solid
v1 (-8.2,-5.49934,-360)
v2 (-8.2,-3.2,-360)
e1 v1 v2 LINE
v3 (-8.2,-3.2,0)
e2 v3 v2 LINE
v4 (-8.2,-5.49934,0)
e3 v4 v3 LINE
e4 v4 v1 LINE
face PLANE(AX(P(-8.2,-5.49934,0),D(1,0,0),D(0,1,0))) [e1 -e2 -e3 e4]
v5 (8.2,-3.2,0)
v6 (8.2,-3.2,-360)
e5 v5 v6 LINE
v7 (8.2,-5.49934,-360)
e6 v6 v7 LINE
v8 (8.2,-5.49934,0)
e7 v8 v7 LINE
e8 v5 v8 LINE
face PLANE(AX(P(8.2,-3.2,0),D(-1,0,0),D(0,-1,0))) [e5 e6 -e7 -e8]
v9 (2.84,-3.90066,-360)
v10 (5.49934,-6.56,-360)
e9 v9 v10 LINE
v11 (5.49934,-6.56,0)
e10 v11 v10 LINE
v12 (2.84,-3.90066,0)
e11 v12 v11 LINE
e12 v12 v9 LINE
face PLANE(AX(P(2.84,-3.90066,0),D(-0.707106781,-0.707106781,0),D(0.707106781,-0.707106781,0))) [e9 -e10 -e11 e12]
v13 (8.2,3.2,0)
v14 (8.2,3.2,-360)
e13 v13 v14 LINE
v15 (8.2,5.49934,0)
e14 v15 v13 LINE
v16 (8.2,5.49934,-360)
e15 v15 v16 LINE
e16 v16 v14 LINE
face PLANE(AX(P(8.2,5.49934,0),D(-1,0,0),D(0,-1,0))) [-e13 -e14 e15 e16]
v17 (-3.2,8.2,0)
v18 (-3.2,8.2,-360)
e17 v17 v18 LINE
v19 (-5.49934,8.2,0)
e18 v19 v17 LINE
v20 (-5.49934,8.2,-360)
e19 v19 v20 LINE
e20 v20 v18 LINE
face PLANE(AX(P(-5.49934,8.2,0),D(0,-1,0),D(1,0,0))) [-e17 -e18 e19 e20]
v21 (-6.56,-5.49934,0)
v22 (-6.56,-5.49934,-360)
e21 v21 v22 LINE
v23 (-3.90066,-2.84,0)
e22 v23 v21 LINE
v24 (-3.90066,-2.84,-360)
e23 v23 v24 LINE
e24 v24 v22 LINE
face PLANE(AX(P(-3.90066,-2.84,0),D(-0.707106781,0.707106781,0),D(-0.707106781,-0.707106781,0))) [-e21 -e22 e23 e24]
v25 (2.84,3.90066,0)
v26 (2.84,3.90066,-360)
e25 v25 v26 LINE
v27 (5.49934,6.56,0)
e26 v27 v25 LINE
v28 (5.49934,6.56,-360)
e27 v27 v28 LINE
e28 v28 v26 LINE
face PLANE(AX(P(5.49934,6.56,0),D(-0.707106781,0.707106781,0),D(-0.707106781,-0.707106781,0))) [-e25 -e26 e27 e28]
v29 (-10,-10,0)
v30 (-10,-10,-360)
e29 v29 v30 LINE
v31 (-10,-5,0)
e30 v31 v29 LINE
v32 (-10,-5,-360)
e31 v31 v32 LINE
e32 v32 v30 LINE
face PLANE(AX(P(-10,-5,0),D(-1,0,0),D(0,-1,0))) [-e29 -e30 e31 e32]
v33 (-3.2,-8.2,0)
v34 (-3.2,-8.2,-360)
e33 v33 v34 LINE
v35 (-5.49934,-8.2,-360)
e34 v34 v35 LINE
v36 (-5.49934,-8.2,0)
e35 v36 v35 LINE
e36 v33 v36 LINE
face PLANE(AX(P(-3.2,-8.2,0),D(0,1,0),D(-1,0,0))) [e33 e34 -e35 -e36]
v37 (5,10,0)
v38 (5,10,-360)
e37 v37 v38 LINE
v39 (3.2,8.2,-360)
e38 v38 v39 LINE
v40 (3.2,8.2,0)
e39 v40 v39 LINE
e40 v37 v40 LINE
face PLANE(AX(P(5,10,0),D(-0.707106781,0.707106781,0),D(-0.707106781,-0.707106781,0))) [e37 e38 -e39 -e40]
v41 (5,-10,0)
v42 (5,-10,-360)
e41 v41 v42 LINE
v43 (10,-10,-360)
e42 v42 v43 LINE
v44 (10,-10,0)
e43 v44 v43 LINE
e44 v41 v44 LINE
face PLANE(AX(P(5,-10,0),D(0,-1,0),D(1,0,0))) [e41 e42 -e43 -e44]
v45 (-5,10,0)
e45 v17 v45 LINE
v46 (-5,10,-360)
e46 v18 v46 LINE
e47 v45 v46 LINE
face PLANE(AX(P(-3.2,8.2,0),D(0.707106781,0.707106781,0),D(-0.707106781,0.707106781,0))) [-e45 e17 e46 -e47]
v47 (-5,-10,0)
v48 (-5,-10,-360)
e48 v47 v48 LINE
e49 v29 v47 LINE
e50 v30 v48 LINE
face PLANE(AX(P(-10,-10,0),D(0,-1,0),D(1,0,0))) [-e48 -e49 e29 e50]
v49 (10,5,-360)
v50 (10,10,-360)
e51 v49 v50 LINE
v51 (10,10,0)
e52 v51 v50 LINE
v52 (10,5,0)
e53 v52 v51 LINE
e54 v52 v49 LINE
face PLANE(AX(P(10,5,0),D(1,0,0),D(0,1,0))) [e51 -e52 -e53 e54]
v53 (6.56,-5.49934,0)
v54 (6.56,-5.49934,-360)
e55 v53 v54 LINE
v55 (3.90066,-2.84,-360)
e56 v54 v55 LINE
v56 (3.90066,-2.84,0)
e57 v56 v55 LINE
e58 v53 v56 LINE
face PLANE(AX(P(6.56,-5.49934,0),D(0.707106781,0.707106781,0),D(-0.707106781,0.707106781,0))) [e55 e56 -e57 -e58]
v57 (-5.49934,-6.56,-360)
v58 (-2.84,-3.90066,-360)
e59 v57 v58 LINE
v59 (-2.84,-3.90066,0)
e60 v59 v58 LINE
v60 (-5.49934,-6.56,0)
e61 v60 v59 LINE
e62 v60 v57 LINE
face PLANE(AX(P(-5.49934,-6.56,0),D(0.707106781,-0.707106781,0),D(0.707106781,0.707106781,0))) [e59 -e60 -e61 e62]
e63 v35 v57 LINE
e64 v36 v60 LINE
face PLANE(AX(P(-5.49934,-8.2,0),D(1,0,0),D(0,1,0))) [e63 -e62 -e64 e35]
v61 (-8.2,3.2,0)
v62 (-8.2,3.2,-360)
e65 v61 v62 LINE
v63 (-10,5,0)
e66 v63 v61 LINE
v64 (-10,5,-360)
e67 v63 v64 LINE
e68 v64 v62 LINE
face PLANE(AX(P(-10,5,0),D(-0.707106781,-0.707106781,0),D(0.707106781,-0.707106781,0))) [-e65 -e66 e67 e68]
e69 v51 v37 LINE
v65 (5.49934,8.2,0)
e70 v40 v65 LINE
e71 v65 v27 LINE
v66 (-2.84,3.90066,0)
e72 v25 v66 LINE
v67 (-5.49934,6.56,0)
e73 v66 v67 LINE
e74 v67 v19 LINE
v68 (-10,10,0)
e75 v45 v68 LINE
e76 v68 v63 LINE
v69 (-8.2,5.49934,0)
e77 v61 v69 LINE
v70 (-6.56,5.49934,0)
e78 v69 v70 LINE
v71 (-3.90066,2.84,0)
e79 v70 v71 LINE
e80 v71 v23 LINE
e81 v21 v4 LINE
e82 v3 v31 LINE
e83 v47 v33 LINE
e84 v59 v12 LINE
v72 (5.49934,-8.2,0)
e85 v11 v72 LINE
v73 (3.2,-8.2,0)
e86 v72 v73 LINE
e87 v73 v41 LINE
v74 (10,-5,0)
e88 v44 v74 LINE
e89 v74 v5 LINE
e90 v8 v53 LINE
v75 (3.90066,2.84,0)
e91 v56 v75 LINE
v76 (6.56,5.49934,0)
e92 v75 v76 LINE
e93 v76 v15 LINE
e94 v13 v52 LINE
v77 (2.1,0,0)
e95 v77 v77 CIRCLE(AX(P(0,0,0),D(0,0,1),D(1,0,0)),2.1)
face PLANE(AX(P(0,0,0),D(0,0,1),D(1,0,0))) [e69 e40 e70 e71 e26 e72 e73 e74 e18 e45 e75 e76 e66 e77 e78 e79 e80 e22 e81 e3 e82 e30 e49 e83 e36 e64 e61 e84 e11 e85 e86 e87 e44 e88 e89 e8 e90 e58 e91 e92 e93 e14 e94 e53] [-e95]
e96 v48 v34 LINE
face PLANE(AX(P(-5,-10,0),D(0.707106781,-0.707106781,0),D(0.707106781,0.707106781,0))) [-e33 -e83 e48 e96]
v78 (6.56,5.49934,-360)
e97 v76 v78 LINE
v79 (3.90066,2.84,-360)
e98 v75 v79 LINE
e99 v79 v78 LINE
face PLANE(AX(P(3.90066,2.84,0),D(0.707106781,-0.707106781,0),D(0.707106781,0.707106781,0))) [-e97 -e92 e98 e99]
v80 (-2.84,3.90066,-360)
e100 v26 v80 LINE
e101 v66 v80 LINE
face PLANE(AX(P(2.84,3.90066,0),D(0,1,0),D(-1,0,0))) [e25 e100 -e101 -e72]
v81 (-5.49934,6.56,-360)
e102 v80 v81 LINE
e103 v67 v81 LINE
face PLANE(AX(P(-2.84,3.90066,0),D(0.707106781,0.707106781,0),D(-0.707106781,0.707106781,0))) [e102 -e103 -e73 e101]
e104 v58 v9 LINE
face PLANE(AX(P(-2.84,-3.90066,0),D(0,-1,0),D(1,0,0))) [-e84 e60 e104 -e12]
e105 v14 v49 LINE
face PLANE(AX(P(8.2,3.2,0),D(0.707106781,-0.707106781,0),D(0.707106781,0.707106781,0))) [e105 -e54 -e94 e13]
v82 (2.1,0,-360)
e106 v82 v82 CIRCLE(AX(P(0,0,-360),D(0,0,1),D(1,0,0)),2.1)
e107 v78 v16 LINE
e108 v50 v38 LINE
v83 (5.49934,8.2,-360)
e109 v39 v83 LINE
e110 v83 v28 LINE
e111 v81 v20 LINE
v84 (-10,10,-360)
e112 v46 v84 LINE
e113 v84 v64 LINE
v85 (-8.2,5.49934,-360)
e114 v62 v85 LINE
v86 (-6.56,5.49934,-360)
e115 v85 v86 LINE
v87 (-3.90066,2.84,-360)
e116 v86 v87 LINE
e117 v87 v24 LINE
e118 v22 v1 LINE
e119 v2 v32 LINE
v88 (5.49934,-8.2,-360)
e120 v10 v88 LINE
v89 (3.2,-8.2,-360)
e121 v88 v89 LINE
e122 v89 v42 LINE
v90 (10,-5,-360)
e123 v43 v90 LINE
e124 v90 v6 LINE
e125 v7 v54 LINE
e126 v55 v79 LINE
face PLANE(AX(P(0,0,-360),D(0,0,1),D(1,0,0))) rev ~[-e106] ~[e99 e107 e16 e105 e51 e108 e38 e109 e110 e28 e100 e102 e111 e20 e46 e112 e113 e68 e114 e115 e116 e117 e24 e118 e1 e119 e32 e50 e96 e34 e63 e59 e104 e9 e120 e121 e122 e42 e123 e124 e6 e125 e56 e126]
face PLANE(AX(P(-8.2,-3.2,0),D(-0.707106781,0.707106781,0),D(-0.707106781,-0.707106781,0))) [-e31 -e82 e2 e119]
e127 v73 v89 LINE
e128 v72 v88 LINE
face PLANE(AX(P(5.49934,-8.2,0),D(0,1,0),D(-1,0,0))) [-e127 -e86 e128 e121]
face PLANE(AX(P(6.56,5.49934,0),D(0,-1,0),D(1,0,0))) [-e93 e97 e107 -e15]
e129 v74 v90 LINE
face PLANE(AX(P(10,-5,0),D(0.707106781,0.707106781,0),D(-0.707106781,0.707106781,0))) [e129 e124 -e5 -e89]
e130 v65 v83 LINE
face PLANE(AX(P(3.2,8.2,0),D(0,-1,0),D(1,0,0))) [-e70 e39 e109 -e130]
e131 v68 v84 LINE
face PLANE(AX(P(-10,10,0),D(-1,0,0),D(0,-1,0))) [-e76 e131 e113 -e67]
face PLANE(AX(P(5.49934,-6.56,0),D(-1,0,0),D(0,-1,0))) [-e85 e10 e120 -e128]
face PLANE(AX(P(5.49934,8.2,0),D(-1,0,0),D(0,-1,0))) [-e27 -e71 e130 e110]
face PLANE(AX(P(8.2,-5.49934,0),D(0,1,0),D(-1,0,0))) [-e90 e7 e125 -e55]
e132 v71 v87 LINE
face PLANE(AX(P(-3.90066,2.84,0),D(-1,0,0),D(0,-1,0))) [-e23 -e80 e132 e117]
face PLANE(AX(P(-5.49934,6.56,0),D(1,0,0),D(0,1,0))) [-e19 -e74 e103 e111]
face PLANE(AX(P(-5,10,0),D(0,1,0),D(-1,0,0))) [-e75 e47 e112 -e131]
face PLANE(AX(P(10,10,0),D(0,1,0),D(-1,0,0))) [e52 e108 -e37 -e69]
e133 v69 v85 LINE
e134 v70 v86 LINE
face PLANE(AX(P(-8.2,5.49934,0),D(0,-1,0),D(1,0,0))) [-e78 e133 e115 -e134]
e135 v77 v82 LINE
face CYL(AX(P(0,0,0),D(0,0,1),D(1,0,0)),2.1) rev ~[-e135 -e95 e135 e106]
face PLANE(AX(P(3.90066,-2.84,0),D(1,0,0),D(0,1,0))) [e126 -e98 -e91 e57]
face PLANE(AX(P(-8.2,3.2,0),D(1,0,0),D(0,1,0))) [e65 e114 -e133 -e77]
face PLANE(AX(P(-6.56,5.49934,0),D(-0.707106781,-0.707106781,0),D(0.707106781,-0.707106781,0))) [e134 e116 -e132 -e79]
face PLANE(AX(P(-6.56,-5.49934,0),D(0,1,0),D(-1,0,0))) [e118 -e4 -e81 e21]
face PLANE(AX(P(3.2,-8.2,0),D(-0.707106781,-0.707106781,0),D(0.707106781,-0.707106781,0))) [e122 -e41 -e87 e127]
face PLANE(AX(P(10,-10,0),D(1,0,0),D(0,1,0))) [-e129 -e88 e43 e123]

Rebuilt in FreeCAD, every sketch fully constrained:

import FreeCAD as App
import Part
import Sketcher

V = App.Vector
Q = App.Units.Quantity

doc = App.newDocument("Part")
body = doc.addObject("PartDesign::Body", "Body")

# Sketch on XY plane
sketch1 = doc.addObject("Sketcher::SketchObject", "Sketch")
body.addObject(sketch1)
sketch1.AttachmentSupport = (doc.XY_Plane, [""])
sketch1.MapMode = "FlatFace"
sketch1.addGeometry(Part.LineSegment(V(-10, 10, 0), V(-10, 5, 0)), False)
sketch1.addGeometry(Part.LineSegment(V(-10, 5, 0), V(-8.2, 3.2, 0)), False)
sketch1.addGeometry(Part.LineSegment(V(-8.2, 3.2, 0), V(-8.2, 5.5, 0)), False)
sketch1.addGeometry(Part.LineSegment(V(-8.2, 5.5, 0), V(-6.6, 5.5, 0)), False)
sketch1.addGeometry(Part.LineSegment(V(-6.6, 5.5, 0), V(-3.9, 2.8, 0)), False)
sketch1.addGeometry(Part.LineSegment(V(-3.9, 2.8, 0), V(-3.9, -2.8, 0)), False)
sketch1.addGeometry(Part.LineSegment(V(-3.9, -2.8, 0), V(-6.6, -5.5, 0)), False)
sketch1.addGeometry(Part.LineSegment(V(-6.6, -5.5, 0), V(-8.2, -5.5, 0)), False)
sketch1.addGeometry(Part.LineSegment(V(-8.2, -5.5, 0), V(-8.2, -3.2, 0)), False)
sketch1.addGeometry(Part.LineSegment(V(-8.2, -3.2, 0), V(-10, -5, 0)), False)
sketch1.addGeometry(Part.LineSegment(V(-10, -5, 0), V(-10, -10, 0)), False)
sketch1.addGeometry(Part.LineSegment(V(-10, -10, 0), V(-5, -10, 0)), False)
sketch1.addGeometry(Part.LineSegment(V(-5, -10, 0), V(-3.2, -8.2, 0)), False)
sketch1.addGeometry(Part.LineSegment(V(-3.2, -8.2, 0), V(-5.5, -8.2, 0)), False)
sketch1.addGeometry(Part.LineSegment(V(-5.5, -8.2, 0), V(-5.5, -6.6, 0)), False)
sketch1.addGeometry(Part.LineSegment(V(-5.5, -6.6, 0), V(-2.8, -3.9, 0)), False)
sketch1.addGeometry(Part.LineSegment(V(-2.8, -3.9, 0), V(2.8, -3.9, 0)), False)
sketch1.addGeometry(Part.LineSegment(V(2.8, -3.9, 0), V(5.5, -6.6, 0)), False)
sketch1.addGeometry(Part.LineSegment(V(5.5, -6.6, 0), V(5.5, -8.2, 0)), False)
sketch1.addGeometry(Part.LineSegment(V(5.5, -8.2, 0), V(3.2, -8.2, 0)), False)
sketch1.addGeometry(Part.LineSegment(V(3.2, -8.2, 0), V(5, -10, 0)), False)
sketch1.addGeometry(Part.LineSegment(V(5, -10, 0), V(10, -10, 0)), False)
sketch1.addGeometry(Part.LineSegment(V(10, -10, 0), V(10, -5, 0)), False)
sketch1.addGeometry(Part.LineSegment(V(10, -5, 0), V(8.2, -3.2, 0)), False)
sketch1.addGeometry(Part.LineSegment(V(8.2, -3.2, 0), V(8.2, -5.5, 0)), False)
sketch1.addGeometry(Part.LineSegment(V(8.2, -5.5, 0), V(6.6, -5.5, 0)), False)
sketch1.addGeometry(Part.LineSegment(V(6.6, -5.5, 0), V(3.9, -2.8, 0)), False)
sketch1.addGeometry(Part.LineSegment(V(3.9, -2.8, 0), V(3.9, 2.8, 0)), False)
sketch1.addGeometry(Part.LineSegment(V(3.9, 2.8, 0), V(6.6, 5.5, 0)), False)
sketch1.addGeometry(Part.LineSegment(V(6.6, 5.5, 0), V(8.2, 5.5, 0)), False)
sketch1.addGeometry(Part.LineSegment(V(8.2, 5.5, 0), V(8.2, 3.2, 0)), False)
sketch1.addGeometry(Part.LineSegment(V(8.2, 3.2, 0), V(10, 5, 0)), False)
sketch1.addGeometry(Part.LineSegment(V(10, 5, 0), V(10, 10, 0)), False)
sketch1.addGeometry(Part.LineSegment(V(10, 10, 0), V(5, 10, 0)), False)
sketch1.addGeometry(Part.LineSegment(V(5, 10, 0), V(3.2, 8.2, 0)), False)
sketch1.addGeometry(Part.LineSegment(V(3.2, 8.2, 0), V(5.5, 8.2, 0)), False)
sketch1.addGeometry(Part.LineSegment(V(5.5, 8.2, 0), V(5.5, 6.6, 0)), False)
sketch1.addGeometry(Part.LineSegment(V(5.5, 6.6, 0), V(2.8, 3.9, 0)), False)
sketch1.addGeometry(Part.LineSegment(V(2.8, 3.9, 0), V(-2.8, 3.9, 0)), False)
sketch1.addGeometry(Part.LineSegment(V(-2.8, 3.9, 0), V(-5.5, 6.6, 0)), False)
sketch1.addGeometry(Part.LineSegment(V(-5.5, 6.6, 0), V(-5.5, 8.2, 0)), False)
sketch1.addGeometry(Part.LineSegment(V(-5.5, 8.2, 0), V(-3.2, 8.2, 0)), False)
sketch1.addGeometry(Part.LineSegment(V(-3.2, 8.2, 0), V(-5, 10, 0)), False)
sketch1.addGeometry(Part.LineSegment(V(-5, 10, 0), V(-10, 10, 0)), False)
sketch1.addGeometry(Part.Circle(V(0, 0, 0), V(0, 0, 1), 2.1), False)
sketch1.addConstraint(Sketcher.Constraint("Coincident", 0, 2, 1, 1))
sketch1.addConstraint(Sketcher.Constraint("Coincident", 1, 2, 2, 1))
sketch1.addConstraint(Sketcher.Constraint("Coincident", 2, 2, 3, 1))
sketch1.addConstraint(Sketcher.Constraint("Coincident", 3, 2, 4, 1))
sketch1.addConstraint(Sketcher.Constraint("Coincident", 4, 2, 5, 1))
sketch1.addConstraint(Sketcher.Constraint("Coincident", 5, 2, 6, 1))
sketch1.addConstraint(Sketcher.Constraint("Coincident", 6, 2, 7, 1))
sketch1.addConstraint(Sketcher.Constraint("Coincident", 7, 2, 8, 1))
sketch1.addConstraint(Sketcher.Constraint("Coincident", 8, 2, 9, 1))
sketch1.addConstraint(Sketcher.Constraint("Coincident", 9, 2, 10, 1))
sketch1.addConstraint(Sketcher.Constraint("Coincident", 10, 2, 11, 1))
sketch1.addConstraint(Sketcher.Constraint("Coincident", 11, 2, 12, 1))
sketch1.addConstraint(Sketcher.Constraint("Coincident", 12, 2, 13, 1))
sketch1.addConstraint(Sketcher.Constraint("Coincident", 13, 2, 14, 1))
sketch1.addConstraint(Sketcher.Constraint("Coincident", 14, 2, 15, 1))
sketch1.addConstraint(Sketcher.Constraint("Coincident", 15, 2, 16, 1))
sketch1.addConstraint(Sketcher.Constraint("Coincident", 16, 2, 17, 1))
sketch1.addConstraint(Sketcher.Constraint("Coincident", 17, 2, 18, 1))
sketch1.addConstraint(Sketcher.Constraint("Coincident", 18, 2, 19, 1))
sketch1.addConstraint(Sketcher.Constraint("Coincident", 19, 2, 20, 1))
sketch1.addConstraint(Sketcher.Constraint("Coincident", 20, 2, 21, 1))
sketch1.addConstraint(Sketcher.Constraint("Coincident", 21, 2, 22, 1))
sketch1.addConstraint(Sketcher.Constraint("Coincident", 22, 2, 23, 1))
sketch1.addConstraint(Sketcher.Constraint("Coincident", 23, 2, 24, 1))
sketch1.addConstraint(Sketcher.Constraint("Coincident", 24, 2, 25, 1))
sketch1.addConstraint(Sketcher.Constraint("Coincident", 25, 2, 26, 1))
sketch1.addConstraint(Sketcher.Constraint("Coincident", 26, 2, 27, 1))
sketch1.addConstraint(Sketcher.Constraint("Coincident", 27, 2, 28, 1))
sketch1.addConstraint(Sketcher.Constraint("Coincident", 28, 2, 29, 1))
sketch1.addConstraint(Sketcher.Constraint("Coincident", 29, 2, 30, 1))
sketch1.addConstraint(Sketcher.Constraint("Coincident", 30, 2, 31, 1))
sketch1.addConstraint(Sketcher.Constraint("Coincident", 31, 2, 32, 1))
sketch1.addConstraint(Sketcher.Constraint("Coincident", 32, 2, 33, 1))
sketch1.addConstraint(Sketcher.Constraint("Coincident", 33, 2, 34, 1))
sketch1.addConstraint(Sketcher.Constraint("Coincident", 34, 2, 35, 1))
sketch1.addConstraint(Sketcher.Constraint("Coincident", 35, 2, 36, 1))
sketch1.addConstraint(Sketcher.Constraint("Coincident", 36, 2, 37, 1))
sketch1.addConstraint(Sketcher.Constraint("Coincident", 37, 2, 38, 1))
sketch1.addConstraint(Sketcher.Constraint("Coincident", 38, 2, 39, 1))
sketch1.addConstraint(Sketcher.Constraint("Coincident", 39, 2, 40, 1))
sketch1.addConstraint(Sketcher.Constraint("Coincident", 40, 2, 41, 1))
sketch1.addConstraint(Sketcher.Constraint("Coincident", 41, 2, 42, 1))
sketch1.addConstraint(Sketcher.Constraint("Coincident", 42, 2, 43, 1))
sketch1.addConstraint(Sketcher.Constraint("Coincident", 43, 2, 0, 1))
sketch1.addConstraint(Sketcher.Constraint("Vertical", 0))
sketch1.addConstraint(Sketcher.Constraint("Vertical", 2))
sketch1.addConstraint(Sketcher.Constraint("Horizontal", 3))
sketch1.addConstraint(Sketcher.Constraint("Vertical", 5))
sketch1.addConstraint(Sketcher.Constraint("Horizontal", 7))
sketch1.addConstraint(Sketcher.Constraint("Vertical", 8))
sketch1.addConstraint(Sketcher.Constraint("Vertical", 10))
sketch1.addConstraint(Sketcher.Constraint("Horizontal", 11))
sketch1.addConstraint(Sketcher.Constraint("Horizontal", 13))
sketch1.addConstraint(Sketcher.Constraint("Vertical", 14))
sketch1.addConstraint(Sketcher.Constraint("Horizontal", 16))
sketch1.addConstraint(Sketcher.Constraint("Vertical", 18))
sketch1.addConstraint(Sketcher.Constraint("Horizontal", 19))
sketch1.addConstraint(Sketcher.Constraint("Horizontal", 21))
sketch1.addConstraint(Sketcher.Constraint("Vertical", 22))
sketch1.addConstraint(Sketcher.Constraint("Vertical", 24))
sketch1.addConstraint(Sketcher.Constraint("Horizontal", 25))
sketch1.addConstraint(Sketcher.Constraint("Vertical", 27))
sketch1.addConstraint(Sketcher.Constraint("Horizontal", 29))
sketch1.addConstraint(Sketcher.Constraint("Vertical", 30))
sketch1.addConstraint(Sketcher.Constraint("Vertical", 32))
sketch1.addConstraint(Sketcher.Constraint("Horizontal", 33))
sketch1.addConstraint(Sketcher.Constraint("Horizontal", 35))
sketch1.addConstraint(Sketcher.Constraint("Vertical", 36))
sketch1.addConstraint(Sketcher.Constraint("Horizontal", 38))
sketch1.addConstraint(Sketcher.Constraint("Vertical", 40))
sketch1.addConstraint(Sketcher.Constraint("Horizontal", 41))
sketch1.addConstraint(Sketcher.Constraint("Horizontal", 43))
sketch1.addConstraint(Sketcher.Constraint("Coincident", 44, 3, -1, 1))
sketch1.addConstraint(Sketcher.Constraint("Symmetric", 0, 2, 22, 2, -1, 1))
sketch1.addConstraint(Sketcher.Constraint("Symmetric", 1, 2, 23, 2, -1, 1))
sketch1.addConstraint(Sketcher.Constraint("Symmetric", 3, 2, 25, 2, -1, 1))
sketch1.addConstraint(Sketcher.Constraint("Symmetric", 4, 2, 26, 2, -1, 1))
sketch1.addConstraint(Sketcher.Constraint("Symmetric", 6, 2, 28, 2, -1, 1))
sketch1.addConstraint(Sketcher.Constraint("Symmetric", 8, 2, 30, 2, -1, 1))
sketch1.addConstraint(Sketcher.Constraint("Symmetric", 9, 2, 31, 2, -1, 1))
sketch1.addConstraint(Sketcher.Constraint("Symmetric", 11, 2, 33, 2, -1, 1))
sketch1.addConstraint(Sketcher.Constraint("Symmetric", 12, 2, 34, 2, -1, 1))
sketch1.addConstraint(Sketcher.Constraint("Symmetric", 14, 2, 36, 2, -1, 1))
sketch1.addConstraint(Sketcher.Constraint("Symmetric", 15, 2, 37, 2, -1, 1))
sketch1.addConstraint(Sketcher.Constraint("Symmetric", 17, 2, 39, 2, -1, 1))
sketch1.addConstraint(Sketcher.Constraint("Symmetric", 19, 2, 41, 2, -1, 1))
sketch1.addConstraint(Sketcher.Constraint("Symmetric", 20, 2, 42, 2, -1, 1))
sketch1.addConstraint(Sketcher.Constraint("Symmetric", 14, 2, 17, 2, -2))
sketch1.addConstraint(Sketcher.Constraint("Symmetric", 12, 2, 19, 2, -2))
sketch1.addConstraint(Sketcher.Constraint("Symmetric", 11, 2, 20, 2, -2))
sketch1.addConstraint(Sketcher.Constraint("Symmetric", 9, 2, 22, 2, -2))
sketch1.addConstraint(Sketcher.Constraint("Symmetric", 8, 2, 23, 2, -2))
sketch1.addConstraint(Sketcher.Constraint("Symmetric", 6, 2, 25, 2, -2))
sketch1.addConstraint(Sketcher.Constraint("Parallel", 1, 4))
sketch1.addConstraint(Sketcher.Constraint("Perpendicular", 4, 6))
sketch1.addConstraint(Sketcher.Constraint("Parallel", 6, 9))
sketch1.addConstraint(Sketcher.Constraint("Parallel", 9, 12))
sketch1.addConstraint(Sketcher.Constraint("Parallel", 12, 15))
sketch1.addConstraint(Sketcher.Constraint("Perpendicular", 15, 17))
sketch1.addConstraint(Sketcher.Constraint("Perpendicular", 26, 28))
sketch1.addConstraint(Sketcher.Constraint("Perpendicular", 37, 39))
sketch1.addConstraint(Sketcher.Constraint("Equal", 43, 0))
sketch1.addConstraint(Sketcher.Constraint("Equal", 41, 2))
sketch1.addConstraint(Sketcher.Constraint("Equal", 38, 5))
sketch1.addConstraint(Sketcher.Constraint("Equal", 29, 14))
sketch1.addConstraint(Sketcher.Constraint("Equal", 9, 12))
sketch1.addConstraint(Sketcher.Constraint("Equal", 6, 15))
sketch1.addConstraint(Sketcher.Constraint("Diameter", 44, Q("4.2 mm")))
sketch1.addConstraint(Sketcher.Constraint("DistanceX", 11, 1, 11, 2, Q("5 mm")))
sketch1.addConstraint(Sketcher.Constraint("DistanceX", 0, 2, -1, 1, Q("10 mm")))
sketch1.addConstraint(Sketcher.Constraint("DistanceX", 3, 1, 3, 2, Q("1.64 mm")))
sketch1.addConstraint(Sketcher.Constraint("DistanceX", 16, 1, 16, 2, Q("5.68 mm")))
sketch1.addConstraint(Sketcher.Constraint("DistanceX", 1, 2, -1, 1, Q("8.2 mm")))
sketch1.addConstraint(Sketcher.Constraint("DistanceX", 13, 2, 13, 1, Q("2.29934 mm")))
pad1 = doc.addObject("PartDesign::Pad", "Pad")
body.addObject(pad1)
pad1.Profile = sketch1
pad1.Length = 360
pad1.Reversed = True

doc.recompute()
